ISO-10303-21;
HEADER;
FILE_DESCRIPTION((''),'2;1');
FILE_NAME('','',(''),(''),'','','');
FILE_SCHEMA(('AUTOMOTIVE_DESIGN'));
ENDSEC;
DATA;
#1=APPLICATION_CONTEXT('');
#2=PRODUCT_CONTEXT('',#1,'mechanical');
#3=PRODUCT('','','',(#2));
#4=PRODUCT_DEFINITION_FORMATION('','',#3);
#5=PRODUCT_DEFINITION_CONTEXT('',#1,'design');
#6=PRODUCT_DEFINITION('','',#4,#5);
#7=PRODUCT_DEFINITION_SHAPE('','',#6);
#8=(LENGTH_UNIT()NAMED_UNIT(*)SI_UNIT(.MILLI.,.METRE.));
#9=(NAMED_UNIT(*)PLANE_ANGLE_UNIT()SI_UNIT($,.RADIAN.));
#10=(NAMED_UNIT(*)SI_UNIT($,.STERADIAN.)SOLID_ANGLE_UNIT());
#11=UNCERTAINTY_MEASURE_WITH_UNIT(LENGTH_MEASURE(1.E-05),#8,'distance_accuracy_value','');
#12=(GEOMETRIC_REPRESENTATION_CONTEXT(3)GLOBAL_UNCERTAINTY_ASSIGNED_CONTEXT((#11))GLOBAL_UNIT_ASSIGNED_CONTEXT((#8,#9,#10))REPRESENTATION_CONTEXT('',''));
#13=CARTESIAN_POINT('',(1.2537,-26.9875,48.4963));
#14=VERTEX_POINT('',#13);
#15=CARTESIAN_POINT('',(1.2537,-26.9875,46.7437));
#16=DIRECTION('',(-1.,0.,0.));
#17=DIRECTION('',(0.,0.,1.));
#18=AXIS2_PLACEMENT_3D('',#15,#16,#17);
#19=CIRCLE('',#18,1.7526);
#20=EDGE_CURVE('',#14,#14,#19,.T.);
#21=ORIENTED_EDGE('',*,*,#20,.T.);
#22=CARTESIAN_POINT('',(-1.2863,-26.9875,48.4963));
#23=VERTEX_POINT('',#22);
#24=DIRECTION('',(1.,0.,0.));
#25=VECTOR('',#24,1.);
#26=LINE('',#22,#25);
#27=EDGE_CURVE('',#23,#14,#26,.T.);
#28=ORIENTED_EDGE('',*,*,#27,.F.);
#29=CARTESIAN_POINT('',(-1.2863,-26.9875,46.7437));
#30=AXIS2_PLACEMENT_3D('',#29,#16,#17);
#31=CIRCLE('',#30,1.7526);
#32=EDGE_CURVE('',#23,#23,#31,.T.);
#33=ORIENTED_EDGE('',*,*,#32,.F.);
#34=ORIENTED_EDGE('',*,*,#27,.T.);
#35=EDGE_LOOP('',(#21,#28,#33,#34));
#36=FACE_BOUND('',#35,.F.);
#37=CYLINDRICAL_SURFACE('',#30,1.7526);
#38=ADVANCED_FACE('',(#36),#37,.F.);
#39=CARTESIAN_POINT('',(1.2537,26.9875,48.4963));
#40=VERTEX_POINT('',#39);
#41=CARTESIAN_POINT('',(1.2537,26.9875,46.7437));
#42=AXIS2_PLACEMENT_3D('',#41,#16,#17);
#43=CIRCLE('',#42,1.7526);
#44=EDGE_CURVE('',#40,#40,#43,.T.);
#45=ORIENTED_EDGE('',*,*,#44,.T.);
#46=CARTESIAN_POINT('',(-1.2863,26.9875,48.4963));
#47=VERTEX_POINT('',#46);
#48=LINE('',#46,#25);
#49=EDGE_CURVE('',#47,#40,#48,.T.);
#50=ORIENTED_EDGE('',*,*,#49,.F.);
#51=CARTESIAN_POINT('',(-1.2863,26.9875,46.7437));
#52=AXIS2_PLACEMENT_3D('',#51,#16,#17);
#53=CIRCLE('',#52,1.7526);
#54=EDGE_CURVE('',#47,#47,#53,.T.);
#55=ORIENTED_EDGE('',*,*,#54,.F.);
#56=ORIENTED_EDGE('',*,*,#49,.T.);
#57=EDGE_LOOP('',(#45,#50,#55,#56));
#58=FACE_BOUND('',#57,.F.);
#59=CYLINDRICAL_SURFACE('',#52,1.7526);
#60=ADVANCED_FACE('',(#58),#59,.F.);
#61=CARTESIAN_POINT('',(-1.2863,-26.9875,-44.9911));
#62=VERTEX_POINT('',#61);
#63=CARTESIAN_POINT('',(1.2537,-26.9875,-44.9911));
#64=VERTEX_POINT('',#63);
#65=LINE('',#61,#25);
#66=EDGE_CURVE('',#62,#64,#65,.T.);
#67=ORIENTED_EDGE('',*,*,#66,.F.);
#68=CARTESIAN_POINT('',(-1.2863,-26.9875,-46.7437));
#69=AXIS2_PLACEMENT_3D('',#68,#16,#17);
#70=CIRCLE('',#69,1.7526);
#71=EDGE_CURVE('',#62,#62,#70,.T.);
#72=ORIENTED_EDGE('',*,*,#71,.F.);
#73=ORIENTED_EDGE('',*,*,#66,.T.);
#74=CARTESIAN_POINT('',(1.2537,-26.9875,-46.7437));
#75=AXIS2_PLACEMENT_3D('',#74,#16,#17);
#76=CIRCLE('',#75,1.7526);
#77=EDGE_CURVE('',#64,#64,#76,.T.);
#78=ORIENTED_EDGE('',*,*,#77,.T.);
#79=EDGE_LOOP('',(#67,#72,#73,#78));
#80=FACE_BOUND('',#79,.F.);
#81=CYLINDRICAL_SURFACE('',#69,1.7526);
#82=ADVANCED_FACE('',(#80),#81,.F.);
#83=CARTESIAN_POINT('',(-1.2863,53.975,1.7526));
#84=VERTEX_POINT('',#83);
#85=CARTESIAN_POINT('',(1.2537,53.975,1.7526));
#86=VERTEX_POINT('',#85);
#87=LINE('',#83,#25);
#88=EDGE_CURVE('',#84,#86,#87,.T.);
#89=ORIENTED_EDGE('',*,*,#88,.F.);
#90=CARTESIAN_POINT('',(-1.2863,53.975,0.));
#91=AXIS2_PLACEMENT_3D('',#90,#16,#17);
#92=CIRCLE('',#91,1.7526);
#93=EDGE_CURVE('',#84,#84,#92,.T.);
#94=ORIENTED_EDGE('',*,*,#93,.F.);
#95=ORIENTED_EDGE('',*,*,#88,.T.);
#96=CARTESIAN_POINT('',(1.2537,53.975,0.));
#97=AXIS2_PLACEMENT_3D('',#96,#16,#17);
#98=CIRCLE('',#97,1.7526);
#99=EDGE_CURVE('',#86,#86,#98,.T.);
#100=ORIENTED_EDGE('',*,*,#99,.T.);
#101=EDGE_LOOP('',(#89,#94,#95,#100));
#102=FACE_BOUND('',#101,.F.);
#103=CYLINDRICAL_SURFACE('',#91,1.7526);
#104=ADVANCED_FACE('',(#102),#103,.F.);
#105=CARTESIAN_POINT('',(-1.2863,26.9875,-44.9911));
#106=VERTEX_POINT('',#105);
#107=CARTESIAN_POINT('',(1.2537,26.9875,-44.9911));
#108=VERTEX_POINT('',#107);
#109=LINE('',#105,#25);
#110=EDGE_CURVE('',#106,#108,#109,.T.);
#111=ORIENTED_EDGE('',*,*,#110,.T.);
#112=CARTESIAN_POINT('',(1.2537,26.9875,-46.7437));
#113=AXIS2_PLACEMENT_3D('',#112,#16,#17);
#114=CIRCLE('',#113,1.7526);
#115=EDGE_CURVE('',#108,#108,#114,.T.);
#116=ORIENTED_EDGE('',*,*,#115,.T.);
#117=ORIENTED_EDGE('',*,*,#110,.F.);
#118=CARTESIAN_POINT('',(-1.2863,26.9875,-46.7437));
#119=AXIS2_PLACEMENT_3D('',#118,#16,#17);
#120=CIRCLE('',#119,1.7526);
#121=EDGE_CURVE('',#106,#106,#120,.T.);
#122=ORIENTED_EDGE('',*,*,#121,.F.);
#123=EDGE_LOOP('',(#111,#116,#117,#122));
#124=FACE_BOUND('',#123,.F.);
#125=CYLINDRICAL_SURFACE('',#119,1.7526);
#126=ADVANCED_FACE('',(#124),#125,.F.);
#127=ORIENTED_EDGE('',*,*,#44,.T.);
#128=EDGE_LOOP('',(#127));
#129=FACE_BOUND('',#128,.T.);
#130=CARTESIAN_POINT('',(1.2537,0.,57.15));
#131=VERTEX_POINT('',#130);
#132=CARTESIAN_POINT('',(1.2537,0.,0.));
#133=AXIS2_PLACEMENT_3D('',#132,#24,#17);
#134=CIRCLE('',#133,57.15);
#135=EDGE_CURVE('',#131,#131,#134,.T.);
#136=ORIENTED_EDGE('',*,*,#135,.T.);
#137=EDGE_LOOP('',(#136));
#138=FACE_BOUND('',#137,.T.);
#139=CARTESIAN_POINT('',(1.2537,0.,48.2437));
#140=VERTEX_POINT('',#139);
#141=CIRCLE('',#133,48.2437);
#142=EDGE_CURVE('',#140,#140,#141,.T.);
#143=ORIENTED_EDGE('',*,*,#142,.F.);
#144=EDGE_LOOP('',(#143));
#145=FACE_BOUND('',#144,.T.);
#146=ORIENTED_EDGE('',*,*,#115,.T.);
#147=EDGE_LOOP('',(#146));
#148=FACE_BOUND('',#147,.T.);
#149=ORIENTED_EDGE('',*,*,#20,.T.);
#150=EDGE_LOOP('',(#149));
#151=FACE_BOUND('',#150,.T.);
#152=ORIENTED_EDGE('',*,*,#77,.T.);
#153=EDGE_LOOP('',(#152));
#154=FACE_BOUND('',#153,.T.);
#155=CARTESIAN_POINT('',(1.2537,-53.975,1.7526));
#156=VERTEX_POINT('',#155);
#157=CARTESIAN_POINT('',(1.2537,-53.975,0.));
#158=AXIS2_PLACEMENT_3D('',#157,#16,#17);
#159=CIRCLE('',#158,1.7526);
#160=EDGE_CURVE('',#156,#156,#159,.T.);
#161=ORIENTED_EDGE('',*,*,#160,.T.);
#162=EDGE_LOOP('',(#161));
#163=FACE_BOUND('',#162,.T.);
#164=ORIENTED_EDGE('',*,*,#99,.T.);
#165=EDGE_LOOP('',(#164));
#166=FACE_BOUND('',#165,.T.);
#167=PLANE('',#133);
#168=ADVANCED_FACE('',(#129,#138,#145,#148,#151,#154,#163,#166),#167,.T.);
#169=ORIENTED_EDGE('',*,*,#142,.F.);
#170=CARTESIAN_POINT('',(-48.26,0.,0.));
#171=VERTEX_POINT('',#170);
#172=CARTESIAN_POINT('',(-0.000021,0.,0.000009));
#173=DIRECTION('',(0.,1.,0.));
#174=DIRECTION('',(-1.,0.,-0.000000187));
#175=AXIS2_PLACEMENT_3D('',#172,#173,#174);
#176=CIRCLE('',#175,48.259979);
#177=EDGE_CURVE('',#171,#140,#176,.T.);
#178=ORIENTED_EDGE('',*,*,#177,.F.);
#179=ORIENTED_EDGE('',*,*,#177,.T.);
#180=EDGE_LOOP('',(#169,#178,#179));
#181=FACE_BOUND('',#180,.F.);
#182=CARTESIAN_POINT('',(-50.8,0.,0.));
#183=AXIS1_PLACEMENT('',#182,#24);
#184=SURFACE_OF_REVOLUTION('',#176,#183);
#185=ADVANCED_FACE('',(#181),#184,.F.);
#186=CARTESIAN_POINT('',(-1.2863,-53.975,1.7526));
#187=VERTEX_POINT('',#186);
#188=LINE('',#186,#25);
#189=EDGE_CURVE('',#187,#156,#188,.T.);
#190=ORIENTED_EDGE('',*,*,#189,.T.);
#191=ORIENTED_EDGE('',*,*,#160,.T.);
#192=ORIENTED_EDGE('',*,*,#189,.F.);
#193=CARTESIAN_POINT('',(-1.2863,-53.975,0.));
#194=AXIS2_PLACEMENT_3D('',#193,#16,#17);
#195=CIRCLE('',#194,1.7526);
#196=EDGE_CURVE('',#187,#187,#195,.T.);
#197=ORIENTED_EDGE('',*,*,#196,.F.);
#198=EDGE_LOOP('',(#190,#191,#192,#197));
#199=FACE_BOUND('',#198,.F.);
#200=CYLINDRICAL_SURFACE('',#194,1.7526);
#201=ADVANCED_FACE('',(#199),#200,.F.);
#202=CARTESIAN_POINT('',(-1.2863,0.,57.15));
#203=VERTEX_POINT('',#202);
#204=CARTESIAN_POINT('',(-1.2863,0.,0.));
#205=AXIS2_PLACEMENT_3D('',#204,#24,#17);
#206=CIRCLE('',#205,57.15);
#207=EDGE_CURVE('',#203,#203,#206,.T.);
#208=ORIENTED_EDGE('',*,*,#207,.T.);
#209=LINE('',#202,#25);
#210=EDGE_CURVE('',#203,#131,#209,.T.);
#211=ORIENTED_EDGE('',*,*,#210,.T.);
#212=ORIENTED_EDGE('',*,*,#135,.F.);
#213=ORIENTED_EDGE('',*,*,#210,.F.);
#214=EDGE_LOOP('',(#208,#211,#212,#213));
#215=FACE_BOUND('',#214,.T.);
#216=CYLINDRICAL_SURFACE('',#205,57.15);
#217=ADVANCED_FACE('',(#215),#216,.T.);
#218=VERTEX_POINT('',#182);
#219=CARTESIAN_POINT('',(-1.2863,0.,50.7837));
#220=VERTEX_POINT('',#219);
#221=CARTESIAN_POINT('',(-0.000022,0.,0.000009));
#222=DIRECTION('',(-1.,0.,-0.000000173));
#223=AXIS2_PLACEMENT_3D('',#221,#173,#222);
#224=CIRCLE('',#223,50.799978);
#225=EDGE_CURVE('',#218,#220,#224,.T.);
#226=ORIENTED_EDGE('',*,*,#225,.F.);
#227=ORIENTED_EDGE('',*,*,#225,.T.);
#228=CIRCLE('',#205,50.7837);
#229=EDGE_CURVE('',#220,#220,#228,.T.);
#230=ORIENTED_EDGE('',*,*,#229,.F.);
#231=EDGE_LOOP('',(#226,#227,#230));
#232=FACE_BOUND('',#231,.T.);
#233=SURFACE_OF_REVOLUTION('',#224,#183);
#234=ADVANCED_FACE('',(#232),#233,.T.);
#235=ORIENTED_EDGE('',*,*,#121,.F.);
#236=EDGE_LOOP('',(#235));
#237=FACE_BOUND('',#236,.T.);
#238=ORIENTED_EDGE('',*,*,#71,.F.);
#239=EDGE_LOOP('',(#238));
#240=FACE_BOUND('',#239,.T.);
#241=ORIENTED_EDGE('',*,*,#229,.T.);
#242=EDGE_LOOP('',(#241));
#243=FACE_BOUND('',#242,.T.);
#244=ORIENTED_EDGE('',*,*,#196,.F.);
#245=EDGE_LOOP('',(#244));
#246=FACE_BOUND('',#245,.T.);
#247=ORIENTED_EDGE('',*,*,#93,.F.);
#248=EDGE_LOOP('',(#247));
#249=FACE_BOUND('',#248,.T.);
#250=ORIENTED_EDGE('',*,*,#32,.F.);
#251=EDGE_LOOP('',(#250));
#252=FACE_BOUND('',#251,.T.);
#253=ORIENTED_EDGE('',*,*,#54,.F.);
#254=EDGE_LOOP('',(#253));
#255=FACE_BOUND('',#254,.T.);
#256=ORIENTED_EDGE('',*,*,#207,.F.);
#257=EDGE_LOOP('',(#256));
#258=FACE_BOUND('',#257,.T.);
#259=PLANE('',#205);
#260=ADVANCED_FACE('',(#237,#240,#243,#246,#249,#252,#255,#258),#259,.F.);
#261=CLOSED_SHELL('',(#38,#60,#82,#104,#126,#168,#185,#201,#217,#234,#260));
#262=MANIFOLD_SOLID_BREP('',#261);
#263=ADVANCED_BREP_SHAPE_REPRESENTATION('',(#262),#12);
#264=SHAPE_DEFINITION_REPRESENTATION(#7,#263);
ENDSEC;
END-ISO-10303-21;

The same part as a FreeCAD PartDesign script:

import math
import FreeCAD as App
import Part
import Sketcher
from FreeCAD import Vector
Q = App.Units.Quantity

doc = App.newDocument("Part")
params = doc.addObject("Spreadsheet::Sheet", "Params")
for row, (alias, value) in enumerate([
    ("sketch1_radius", "2 in"),
    ("sketch1_width", "0.1 in"),
    ("revolution_angle", "360 deg"),
    ("sketch2_diameter", "0.138 in"),
    ("pocket1_length", "10 in"),
], start=1):
    params.set(f"A{row}", alias)
    params.set(f"B{row}", "=" + value)
    params.setAlias(f"B{row}", alias)

body = doc.addObject("PartDesign::Body", "Body")

# Sketch on XZ plane
sketch1 = body.newObject("Sketcher::SketchObject", "Sketch")
sketch1.AttachmentSupport = (doc.getObject("XZ_Plane"), [""])
sketch1.MapMode = "FlatFace"
sketch1.addGeometry([
    Part.LineSegment(Vector(-48.3, 0, 0), Vector(-50.8, 0, 0)),  # 0
    Part.ArcOfCircle(Part.Circle(Vector(0, 0, 0), Vector(0, 0, 1), 50.8), math.radians(91), math.radians(180)),  # 1
    Part.LineSegment(Vector(-1.3, 50.8, 0), Vector(-1.3, 57.1, 0)),  # 2
    Part.LineSegment(Vector(-1.3, 57.1, 0), Vector(1.3, 57.1, 0)),  # 3
    Part.LineSegment(Vector(1.3, 57.1, 0), Vector(1.3, 48.2, 0)),  # 4
    Part.ArcOfCircle(Part.Circle(Vector(0, 0, 0), Vector(0, 0, 1), 48.3), math.radians(89), math.radians(180)),  # 5
], False)
sketch1.addConstraint([
    Sketcher.Constraint("Coincident", 0, 2, 1, 2),
    Sketcher.Constraint("Coincident", 1, 1, 2, 1),
    Sketcher.Constraint("Coincident", 2, 2, 3, 1),
    Sketcher.Constraint("Coincident", 3, 2, 4, 1),
    Sketcher.Constraint("Coincident", 4, 2, 5, 1),
    Sketcher.Constraint("Coincident", 5, 2, 0, 1),
    Sketcher.Constraint("Horizontal", 0),
    Sketcher.Constraint("Vertical", 2),
    Sketcher.Constraint("Horizontal", 3),
    Sketcher.Constraint("Vertical", 4),
    Sketcher.Constraint("Coincident", 1, 3, -1, 1),
    Sketcher.Constraint("Coincident", 5, 3, -1, 1),
    Sketcher.Constraint("PointOnObject", 0, 2, -1),
    Sketcher.Constraint("Equal", 0, 3),
    Sketcher.Constraint("Radius", 1, Q("2 in")),
    Sketcher.Constraint("DistanceX", 0, 2, 0, 1, Q("0.1 in")),
    Sketcher.Constraint("DistanceY", 4, 2, 1, 1, Q("0.1 in")),
    Sketcher.Constraint("DistanceY", -1, 1, 2, 2, Q("2.25 in")),
])
sketch1.setExpression("Constraints[14]", "Params.sketch1_radius")
sketch1.setExpression("Constraints[15]", "Params.sketch1_width")
revolution = body.newObject("PartDesign::Revolution", "Revolution")
revolution.Profile = sketch1
revolution.ReferenceAxis = (sketch1, ["H_Axis"])
revolution.setExpression("Angle", "Params.revolution_angle")

# Sketch on YZ plane
sketch2 = body.newObject("Sketcher::SketchObject", "Sketch001")
sketch2.AttachmentSupport = (doc.getObject("YZ_Plane"), [""])
sketch2.MapMode = "FlatFace"
sketch2.AttachmentOffset = App.Placement(Vector(0, 0, -1.2863), App.Rotation())
sketch2.addGeometry([
    Part.Circle(Vector(54, 0, 0), Vector(0, 0, 1), 1.8),  # 0
    Part.Circle(Vector(27, -46.7, 0), Vector(0, 0, 1), 1.8),  # 1
    Part.Circle(Vector(-27, -46.7, 0), Vector(0, 0, 1), 1.8),  # 2
    Part.Circle(Vector(-54, 0, 0), Vector(0, 0, 1), 1.8),  # 3
    Part.Circle(Vector(-27, 46.7, 0), Vector(0, 0, 1), 1.8),  # 4
    Part.Circle(Vector(27, 46.7, 0), Vector(0, 0, 1), 1.8),  # 5
], False)
sketch2.addConstraint([
    Sketcher.Constraint("Equal", 0, 1),
    Sketcher.Constraint("Equal", 1, 2),
    Sketcher.Constraint("Equal", 2, 3),
    Sketcher.Constraint("Equal", 3, 4),
    Sketcher.Constraint("Equal", 4, 5),
    Sketcher.Constraint("Symmetric", 0, 3, 3, 3, -1, 1),
    Sketcher.Constraint("Symmetric", 1, 3, 4, 3, -1, 1),
    Sketcher.Constraint("Symmetric", 2, 3, 5, 3, -1, 1),
    Sketcher.Constraint("Symmetric", 1, 3, 2, 3, -2),
    Sketcher.Constraint("PointOnObject", 0, 3, -1),
    Sketcher.Constraint("Diameter", 0, Q("0.138 in")),
    Sketcher.Constraint("DistanceX", -1, 1, 0, 3, Q("2.125 in")),
    Sketcher.Constraint("DistanceX", 2, 3, 1, 3, Q("2.125 in")),
    Sketcher.Constraint("DistanceY", 1, 3, -1, 1, Q("1.8403 in")),
])
sketch2.setExpression("Constraints[10]", "Params.sketch2_diameter")
pocket1 = body.newObject("PartDesign::Pocket", "Pocket")
pocket1.Profile = sketch2
pocket1.setExpression("Length", "Params.pocket1_length")
pocket1.Reversed = True

doc.recompute()
